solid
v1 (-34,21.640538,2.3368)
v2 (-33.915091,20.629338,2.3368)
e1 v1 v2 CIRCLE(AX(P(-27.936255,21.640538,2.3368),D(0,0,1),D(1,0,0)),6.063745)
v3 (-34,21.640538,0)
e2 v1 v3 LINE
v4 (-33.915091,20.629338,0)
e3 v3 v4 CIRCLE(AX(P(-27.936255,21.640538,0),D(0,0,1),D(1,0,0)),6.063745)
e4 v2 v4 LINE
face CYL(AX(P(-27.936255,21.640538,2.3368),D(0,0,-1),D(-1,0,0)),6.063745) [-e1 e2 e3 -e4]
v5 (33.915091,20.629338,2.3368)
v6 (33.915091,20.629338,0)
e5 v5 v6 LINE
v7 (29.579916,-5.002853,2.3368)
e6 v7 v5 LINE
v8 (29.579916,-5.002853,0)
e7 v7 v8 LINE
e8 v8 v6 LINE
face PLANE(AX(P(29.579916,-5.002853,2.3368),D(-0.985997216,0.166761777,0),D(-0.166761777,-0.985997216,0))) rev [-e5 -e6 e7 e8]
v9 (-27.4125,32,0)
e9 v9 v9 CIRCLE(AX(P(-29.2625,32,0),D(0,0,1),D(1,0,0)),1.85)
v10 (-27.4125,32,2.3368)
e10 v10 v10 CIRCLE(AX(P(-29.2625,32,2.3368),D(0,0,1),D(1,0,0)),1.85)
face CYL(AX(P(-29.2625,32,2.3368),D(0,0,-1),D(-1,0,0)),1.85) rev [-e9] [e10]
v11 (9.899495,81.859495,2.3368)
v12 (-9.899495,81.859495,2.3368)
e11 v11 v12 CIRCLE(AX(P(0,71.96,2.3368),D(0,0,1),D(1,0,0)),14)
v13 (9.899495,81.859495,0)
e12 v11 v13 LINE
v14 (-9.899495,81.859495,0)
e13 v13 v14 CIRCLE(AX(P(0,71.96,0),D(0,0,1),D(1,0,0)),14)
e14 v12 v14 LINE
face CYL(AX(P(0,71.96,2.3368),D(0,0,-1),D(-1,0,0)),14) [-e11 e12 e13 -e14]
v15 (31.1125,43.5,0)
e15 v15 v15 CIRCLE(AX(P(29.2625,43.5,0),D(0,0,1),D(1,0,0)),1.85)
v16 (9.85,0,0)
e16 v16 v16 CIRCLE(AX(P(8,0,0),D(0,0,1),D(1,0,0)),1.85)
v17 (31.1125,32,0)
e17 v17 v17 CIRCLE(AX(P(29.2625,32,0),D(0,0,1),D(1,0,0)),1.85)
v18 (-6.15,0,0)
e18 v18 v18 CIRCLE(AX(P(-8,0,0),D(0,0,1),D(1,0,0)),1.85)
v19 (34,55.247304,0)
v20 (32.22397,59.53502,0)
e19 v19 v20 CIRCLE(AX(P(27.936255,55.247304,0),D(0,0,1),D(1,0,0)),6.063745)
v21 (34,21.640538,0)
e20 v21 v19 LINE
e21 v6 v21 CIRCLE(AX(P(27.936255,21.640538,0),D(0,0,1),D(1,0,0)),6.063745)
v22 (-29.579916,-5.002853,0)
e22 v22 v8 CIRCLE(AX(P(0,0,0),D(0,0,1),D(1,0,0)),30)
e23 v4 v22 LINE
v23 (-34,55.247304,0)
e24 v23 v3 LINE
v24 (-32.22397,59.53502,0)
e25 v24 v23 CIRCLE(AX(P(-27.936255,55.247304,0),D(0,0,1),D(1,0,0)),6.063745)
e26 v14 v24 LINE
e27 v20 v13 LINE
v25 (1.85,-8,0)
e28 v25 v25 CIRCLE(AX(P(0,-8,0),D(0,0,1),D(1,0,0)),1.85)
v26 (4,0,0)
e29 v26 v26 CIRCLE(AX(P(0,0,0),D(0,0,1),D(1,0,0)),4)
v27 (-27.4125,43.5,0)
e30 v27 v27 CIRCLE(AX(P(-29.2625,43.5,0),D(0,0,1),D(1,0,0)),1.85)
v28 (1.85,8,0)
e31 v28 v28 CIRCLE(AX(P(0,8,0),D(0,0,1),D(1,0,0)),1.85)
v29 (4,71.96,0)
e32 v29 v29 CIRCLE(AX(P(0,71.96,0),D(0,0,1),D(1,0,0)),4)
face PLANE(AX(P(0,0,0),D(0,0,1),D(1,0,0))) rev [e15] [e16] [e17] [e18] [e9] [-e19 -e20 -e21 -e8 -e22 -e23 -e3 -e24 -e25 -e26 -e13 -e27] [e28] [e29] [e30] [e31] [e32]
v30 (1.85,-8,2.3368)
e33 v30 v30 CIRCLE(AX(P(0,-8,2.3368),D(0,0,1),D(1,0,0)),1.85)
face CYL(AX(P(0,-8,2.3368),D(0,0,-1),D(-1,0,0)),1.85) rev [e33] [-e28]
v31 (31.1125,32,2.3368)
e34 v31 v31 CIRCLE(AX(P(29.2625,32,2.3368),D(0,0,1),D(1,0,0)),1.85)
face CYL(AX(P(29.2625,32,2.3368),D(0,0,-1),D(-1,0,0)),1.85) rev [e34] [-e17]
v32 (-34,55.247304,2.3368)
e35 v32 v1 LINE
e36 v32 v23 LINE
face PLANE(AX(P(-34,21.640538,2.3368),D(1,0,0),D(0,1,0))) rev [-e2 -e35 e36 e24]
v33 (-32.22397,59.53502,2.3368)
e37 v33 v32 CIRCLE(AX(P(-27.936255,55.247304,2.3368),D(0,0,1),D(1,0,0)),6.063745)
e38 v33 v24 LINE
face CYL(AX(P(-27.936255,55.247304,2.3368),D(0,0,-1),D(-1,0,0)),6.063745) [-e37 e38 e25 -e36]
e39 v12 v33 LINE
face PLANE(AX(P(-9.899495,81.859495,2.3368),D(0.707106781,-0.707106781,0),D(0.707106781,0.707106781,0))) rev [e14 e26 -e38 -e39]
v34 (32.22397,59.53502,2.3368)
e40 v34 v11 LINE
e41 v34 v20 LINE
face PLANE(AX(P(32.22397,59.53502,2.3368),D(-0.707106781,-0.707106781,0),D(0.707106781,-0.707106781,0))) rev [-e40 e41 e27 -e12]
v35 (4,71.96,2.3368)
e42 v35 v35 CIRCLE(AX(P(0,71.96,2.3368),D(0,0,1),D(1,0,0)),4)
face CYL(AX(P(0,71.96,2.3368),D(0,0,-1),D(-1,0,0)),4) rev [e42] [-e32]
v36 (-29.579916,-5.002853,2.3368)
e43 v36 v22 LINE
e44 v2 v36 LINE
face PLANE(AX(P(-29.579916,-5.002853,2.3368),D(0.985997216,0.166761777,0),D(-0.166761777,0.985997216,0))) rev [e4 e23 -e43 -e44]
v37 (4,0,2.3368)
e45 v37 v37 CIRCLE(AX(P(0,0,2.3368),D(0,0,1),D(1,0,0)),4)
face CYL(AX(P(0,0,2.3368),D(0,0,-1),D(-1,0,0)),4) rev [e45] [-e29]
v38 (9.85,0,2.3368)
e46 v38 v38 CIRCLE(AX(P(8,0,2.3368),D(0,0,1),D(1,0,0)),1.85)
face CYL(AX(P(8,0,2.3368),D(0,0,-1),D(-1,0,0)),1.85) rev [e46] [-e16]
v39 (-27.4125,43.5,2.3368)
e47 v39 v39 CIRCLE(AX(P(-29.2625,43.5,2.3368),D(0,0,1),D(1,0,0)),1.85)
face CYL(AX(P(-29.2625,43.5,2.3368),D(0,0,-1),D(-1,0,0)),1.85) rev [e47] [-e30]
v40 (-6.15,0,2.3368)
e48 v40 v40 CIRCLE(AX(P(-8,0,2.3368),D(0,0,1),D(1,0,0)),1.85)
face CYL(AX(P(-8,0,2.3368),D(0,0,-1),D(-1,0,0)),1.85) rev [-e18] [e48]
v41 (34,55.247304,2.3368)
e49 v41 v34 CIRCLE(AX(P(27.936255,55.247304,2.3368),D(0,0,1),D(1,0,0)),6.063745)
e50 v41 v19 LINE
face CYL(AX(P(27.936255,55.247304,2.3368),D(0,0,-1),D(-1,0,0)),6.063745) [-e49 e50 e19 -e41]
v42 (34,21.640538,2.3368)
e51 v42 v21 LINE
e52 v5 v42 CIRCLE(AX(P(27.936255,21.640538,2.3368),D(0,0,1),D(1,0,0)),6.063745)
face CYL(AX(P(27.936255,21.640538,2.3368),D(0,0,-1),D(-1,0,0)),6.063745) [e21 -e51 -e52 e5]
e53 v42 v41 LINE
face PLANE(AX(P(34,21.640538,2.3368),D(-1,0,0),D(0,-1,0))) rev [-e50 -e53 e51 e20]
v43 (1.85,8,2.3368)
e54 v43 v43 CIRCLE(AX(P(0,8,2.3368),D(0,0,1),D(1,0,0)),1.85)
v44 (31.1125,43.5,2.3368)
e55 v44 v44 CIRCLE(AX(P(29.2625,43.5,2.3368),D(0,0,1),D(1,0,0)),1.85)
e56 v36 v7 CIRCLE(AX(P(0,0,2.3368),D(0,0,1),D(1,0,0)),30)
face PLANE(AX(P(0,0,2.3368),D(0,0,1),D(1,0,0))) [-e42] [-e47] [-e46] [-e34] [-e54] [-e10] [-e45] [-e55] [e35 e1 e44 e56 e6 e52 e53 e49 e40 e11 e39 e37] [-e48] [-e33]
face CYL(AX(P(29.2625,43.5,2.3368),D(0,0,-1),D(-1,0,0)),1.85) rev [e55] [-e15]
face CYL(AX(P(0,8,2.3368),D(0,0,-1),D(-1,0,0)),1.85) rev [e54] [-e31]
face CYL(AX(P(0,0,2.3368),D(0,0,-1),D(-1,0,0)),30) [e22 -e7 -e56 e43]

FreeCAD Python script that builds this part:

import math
import FreeCAD as App
import Part
import Sketcher

V = App.Vector

doc = App.newDocument("Part")
body = doc.addObject("PartDesign::Body", "Body")

sketch1 = body.newObject("Sketcher::SketchObject", "Sketch")
sketch1.AttachmentSupport = (doc.getObject("XY_Plane"), [""])
sketch1.MapMode = "FlatFace"
sketch1.addGeometry(Part.LineSegment(V(-33.9, 20.6, 0), V(-29.6, -5, 0)), False)
sketch1.addGeometry(Part.ArcOfCircle(Part.Circle(V(0, 0, 0), V(0, 0, 1), 30), math.radians(-170), math.radians(-10)), False)
sketch1.addGeometry(Part.LineSegment(V(29.6, -5, 0), V(33.9, 20.6, 0)), False)
sketch1.addGeometry(Part.ArcOfCircle(Part.Circle(V(27.9, 21.6, 0), V(0, 0, 1), 6.1), math.radians(-9.6), math.radians(0)), False)
sketch1.addGeometry(Part.LineSegment(V(34, 21.6, 0), V(34, 55.2, 0)), False)
sketch1.addGeometry(Part.ArcOfCircle(Part.Circle(V(27.9, 55.2, 0), V(0, 0, 1), 6.1), math.radians(0), math.radians(45)), False)
sketch1.addGeometry(Part.LineSegment(V(32.2, 59.5, 0), V(9.9, 81.9, 0)), False)
sketch1.addGeometry(Part.ArcOfCircle(Part.Circle(V(0, 72, 0), V(0, 0, 1), 14), math.radians(45), math.radians(135)), False)
sketch1.addGeometry(Part.LineSegment(V(-9.9, 81.9, 0), V(-32.2, 59.5, 0)), False)
sketch1.addGeometry(Part.ArcOfCircle(Part.Circle(V(-27.9, 55.2, 0), V(0, 0, 1), 6.1), math.radians(135), math.radians(180)), False)
sketch1.addGeometry(Part.LineSegment(V(-34, 55.2, 0), V(-34, 21.6, 0)), False)
sketch1.addGeometry(Part.ArcOfCircle(Part.Circle(V(-27.9, 21.6, 0), V(0, 0, 1), 6.1), math.radians(180), math.radians(189.6)), False)
sketch1.addGeometry(Part.Circle(V(8, 0, 0), V(0, 0, 1), 1.9), False)
sketch1.addGeometry(Part.Circle(V(29.3, 32, 0), V(0, 0, 1), 1.9), False)
sketch1.addGeometry(Part.Circle(V(0, -8, 0), V(0, 0, 1), 1.9), False)
sketch1.addGeometry(Part.Circle(V(0, 0, 0), V(0, 0, 1), 4), False)
sketch1.addGeometry(Part.Circle(V(-8, 0, 0), V(0, 0, 1), 1.9), False)
sketch1.addGeometry(Part.Circle(V(0, 8, 0), V(0, 0, 1), 1.9), False)
sketch1.addGeometry(Part.Circle(V(-29.3, 32, 0), V(0, 0, 1), 1.9), False)
sketch1.addGeometry(Part.Circle(V(29.3, 43.5, 0), V(0, 0, 1), 1.9), False)
sketch1.addGeometry(Part.Circle(V(-29.3, 43.5, 0), V(0, 0, 1), 1.9), False)
sketch1.addGeometry(Part.Circle(V(0, 72, 0), V(0, 0, 1), 4), False)
sketch1.addConstraint(Sketcher.Constraint("Tangent", 0, 2, 1, 1))
sketch1.addConstraint(Sketcher.Constraint("Tangent", 1, 2, 2, 1))
sketch1.addConstraint(Sketcher.Constraint("Tangent", 2, 2, 3, 1))
sketch1.addConstraint(Sketcher.Constraint("Tangent", 3, 2, 4, 1))
sketch1.addConstraint(Sketcher.Constraint("Tangent", 4, 2, 5, 1))
sketch1.addConstraint(Sketcher.Constraint("Tangent", 5, 2, 6, 1))
sketch1.addConstraint(Sketcher.Constraint("Tangent", 6, 2, 7, 1))
sketch1.addConstraint(Sketcher.Constraint("Tangent", 7, 2, 8, 1))
sketch1.addConstraint(Sketcher.Constraint("Tangent", 8, 2, 9, 1))
sketch1.addConstraint(Sketcher.Constraint("Tangent", 9, 2, 10, 1))
sketch1.addConstraint(Sketcher.Constraint("Tangent", 10, 2, 11, 1))
sketch1.addConstraint(Sketcher.Constraint("Tangent", 11, 2, 0, 1))
sketch1.addConstraint(Sketcher.Constraint("Vertical", 4))
sketch1.addConstraint(Sketcher.Constraint("Vertical", 10))
sketch1.addConstraint(Sketcher.Constraint("Coincident", 1, 3, -1, 1))
sketch1.addConstraint(Sketcher.Constraint("Coincident", 15, 3, -1, 1))
sketch1.addConstraint(Sketcher.Constraint("Coincident", 21, 3, 7, 3))
sketch1.addConstraint(Sketcher.Constraint("Equal", 3, 5))
sketch1.addConstraint(Sketcher.Constraint("Equal", 5, 9))
sketch1.addConstraint(Sketcher.Constraint("Equal", 9, 11))
sketch1.addConstraint(Sketcher.Constraint("Equal", 12, 13))
sketch1.addConstraint(Sketcher.Constraint("Equal", 13, 14))
sketch1.addConstraint(Sketcher.Constraint("Equal", 14, 16))
sketch1.addConstraint(Sketcher.Constraint("Equal", 16, 17))
sketch1.addConstraint(Sketcher.Constraint("Equal", 17, 18))
sketch1.addConstraint(Sketcher.Constraint("Equal", 18, 19))
sketch1.addConstraint(Sketcher.Constraint("Equal", 19, 20))
sketch1.addConstraint(Sketcher.Constraint("Equal", 15, 21))
sketch1.addConstraint(Sketcher.Constraint("Symmetric", 12, 3, 16, 3, -1, 1))
sketch1.addConstraint(Sketcher.Constraint("Symmetric", 14, 3, 17, 3, -1, 1))
sketch1.addConstraint(Sketcher.Constraint("Symmetric", 5, 3, 9, 3, -2))
sketch1.addConstraint(Sketcher.Constraint("Symmetric", 13, 3, 18, 3, -2))
sketch1.addConstraint(Sketcher.Constraint("Symmetric", 19, 3, 20, 3, -2))
sketch1.addConstraint(Sketcher.Constraint("PointOnObject", 7, 3, -2))
sketch1.addConstraint(Sketcher.Constraint("PointOnObject", 12, 3, -1))
sketch1.addConstraint(Sketcher.Constraint("PointOnObject", 14, 3, -2))
sketch1.addConstraint(Sketcher.Constraint("Perpendicular", 6, 8))
sketch1.addConstraint(Sketcher.Constraint("Horizontal", 3, 3, 11, 3))
sketch1.addConstraint(Sketcher.Constraint("Vertical", 13, 3, 19, 3))
sketch1.addConstraint(Sketcher.Constraint("Diameter", 15, 8.0))
sketch1.addConstraint(Sketcher.Constraint("Radius", 1, 30.0))
sketch1.addConstraint(Sketcher.Constraint("Radius", 7, 14.0))
sketch1.addConstraint(Sketcher.Constraint("Diameter", 12, 3.7))
sketch1.addConstraint(Sketcher.Constraint("DistanceX", -1, 1, 12, 3, 8.0))
sketch1.addConstraint(Sketcher.Constraint("DistanceY", -1, 1, 13, 3, 32.0))
sketch1.addConstraint(Sketcher.Constraint("DistanceY", 14, 3, -1, 1, 8.0))
sketch1.addConstraint(Sketcher.Constraint("DistanceX", -1, 1, 3, 2, 34.0))
sketch1.addConstraint(Sketcher.Constraint("DistanceY", -1, 1, 19, 3, 43.5))
sketch1.addConstraint(Sketcher.Constraint("DistanceY", -1, 1, 7, 3, 71.96))
sketch1.addConstraint(Sketcher.Constraint("Radius", 3, 6.063745))
sketch1.addConstraint(Sketcher.Constraint("DistanceX", -1, 1, 13, 3, 29.2625))
sketch1.addConstraint(Sketcher.Constraint("DistanceY", 2, 2, 3, 3, 1.011201))
pad1 = body.newObject("PartDesign::Pad", "Pad")
pad1.Profile = sketch1
pad1.Length = 2.3368

doc.recompute()
